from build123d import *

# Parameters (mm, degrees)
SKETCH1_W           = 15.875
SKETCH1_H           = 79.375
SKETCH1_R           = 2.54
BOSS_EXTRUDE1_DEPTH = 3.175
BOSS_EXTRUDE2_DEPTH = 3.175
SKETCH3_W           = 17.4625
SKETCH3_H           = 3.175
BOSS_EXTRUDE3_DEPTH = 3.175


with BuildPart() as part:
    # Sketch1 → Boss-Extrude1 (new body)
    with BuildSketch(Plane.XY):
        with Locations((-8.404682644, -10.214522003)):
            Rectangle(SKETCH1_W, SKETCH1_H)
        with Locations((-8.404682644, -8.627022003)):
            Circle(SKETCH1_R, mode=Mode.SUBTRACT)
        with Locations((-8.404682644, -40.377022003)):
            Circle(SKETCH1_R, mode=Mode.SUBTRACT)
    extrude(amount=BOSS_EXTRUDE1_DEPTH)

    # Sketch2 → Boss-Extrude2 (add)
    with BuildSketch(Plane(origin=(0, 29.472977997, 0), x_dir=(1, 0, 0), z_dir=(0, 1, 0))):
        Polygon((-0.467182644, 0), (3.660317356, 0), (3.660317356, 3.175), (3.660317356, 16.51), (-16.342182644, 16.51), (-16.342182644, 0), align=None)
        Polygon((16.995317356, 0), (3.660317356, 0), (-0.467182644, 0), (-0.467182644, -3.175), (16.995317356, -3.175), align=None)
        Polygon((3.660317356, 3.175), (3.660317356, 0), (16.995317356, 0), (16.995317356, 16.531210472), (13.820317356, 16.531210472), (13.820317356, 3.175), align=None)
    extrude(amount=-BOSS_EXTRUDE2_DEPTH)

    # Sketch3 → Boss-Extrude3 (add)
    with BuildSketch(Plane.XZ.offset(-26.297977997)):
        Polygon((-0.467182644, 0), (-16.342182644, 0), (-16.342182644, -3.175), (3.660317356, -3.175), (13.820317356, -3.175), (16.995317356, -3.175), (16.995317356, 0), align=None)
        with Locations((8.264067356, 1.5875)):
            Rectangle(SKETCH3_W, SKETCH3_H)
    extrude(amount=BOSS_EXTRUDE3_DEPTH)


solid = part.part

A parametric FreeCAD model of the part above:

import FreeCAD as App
import Part
import Sketcher
from FreeCAD import Vector
Q = App.Units.Quantity

doc = App.newDocument("Part")
body = doc.addObject("PartDesign::Body", "Body")

# Sketch on XY plane
sketch1 = body.newObject("Sketcher::SketchObject", "Sketch")
sketch1.AttachmentSupport = (doc.getObject("XY_Plane"), [""])
sketch1.MapMode = "FlatFace"
sketch1.addGeometry([
    Part.LineSegment(Vector(-16.3, 29.5, 0), Vector(-16.3, -49.9, 0)),  # 0
    Part.LineSegment(Vector(-16.3, -49.9, 0), Vector(-0.5, -49.9, 0)),  # 1
    Part.LineSegment(Vector(-0.5, -49.9, 0), Vector(-0.5, 29.5, 0)),  # 2
    Part.LineSegment(Vector(-0.5, 29.5, 0), Vector(-16.3, 29.5, 0)),  # 3
    Part.Circle(Vector(-8.4, -40.4, 0), Vector(0, 0, 1), 2.5),  # 4
    Part.Circle(Vector(-8.4, -8.6, 0), Vector(0, 0, 1), 2.5),  # 5
], False)
sketch1.addConstraint([
    Sketcher.Constraint("Coincident", 0, 2, 1, 1),
    Sketcher.Constraint("Coincident", 1, 2, 2, 1),
    Sketcher.Constraint("Coincident", 2, 2, 3, 1),
    Sketcher.Constraint("Coincident", 3, 2, 0, 1),
    Sketcher.Constraint("Vertical", 0),
    Sketcher.Constraint("Horizontal", 1),
    Sketcher.Constraint("Vertical", 2),
    Sketcher.Constraint("Horizontal", 3),
    Sketcher.Constraint("Equal", 4, 5),
    Sketcher.Constraint("Vertical", 4, 3, 5, 3),
    Sketcher.Constraint("Diameter", 4, Q("0.2 in")),
    Sketcher.Constraint("DistanceY", 5, 3, 2, 2, Q("1.5 in")),
    Sketcher.Constraint("DistanceX", 1, 1, 1, 2, Q("0.625 in")),
    Sketcher.Constraint("DistanceY", 0, 2, 0, 1, Q("3.125 in")),
    Sketcher.Constraint("DistanceY", 4, 3, 5, 3, Q("1.25 in")),
    Sketcher.Constraint("DistanceX", 0, 2, 4, 3, Q("0.3125 in")),
    Sketcher.Constraint("DistanceX", 4, 3, -1, 1, Q("8.404683 mm")),
    Sketcher.Constraint("DistanceY", 4, 3, -1, 1, Q("40.377022 mm")),
])
pad1 = body.newObject("PartDesign::Pad", "Pad")
pad1.Profile = sketch1
pad1.Length = Q("0.125 in")

# Sketch on XZ plane
sketch2 = body.newObject("Sketcher::SketchObject", "Sketch001")
sketch2.AttachmentSupport = (doc.getObject("XZ_Plane"), [""])
sketch2.MapMode = "FlatFace"
sketch2.AttachmentOffset = App.Placement(Vector(0, 0, -29.472978), App.Rotation())
sketch2.addGeometry([
    Part.LineSegment(Vector(3.7, -3.2, 0), Vector(3.7, -16.5, 0)),  # 0
    Part.LineSegment(Vector(3.7, -16.5, 0), Vector(-16.3, -16.5, 0)),  # 1
    Part.LineSegment(Vector(-16.3, -16.5, 0), Vector(-16.3, 0, 0)),  # 2
    Part.LineSegment(Vector(-16.3, 0, 0), Vector(-0.5, 0, 0)),  # 3
    Part.LineSegment(Vector(-0.5, 0, 0), Vector(-0.5, 3.2, 0)),  # 4
    Part.LineSegment(Vector(-0.5, 3.2, 0), Vector(17, 3.2, 0)),  # 5
    Part.LineSegment(Vector(17, 3.2, 0), Vector(17, -16.5, 0)),  # 6
    Part.LineSegment(Vector(17, -16.5, 0), Vector(13.8, -16.5, 0)),  # 7
    Part.LineSegment(Vector(13.8, -16.5, 0), Vector(13.8, -3.2, 0)),  # 8
    Part.LineSegment(Vector(13.8, -3.2, 0), Vector(3.7, -3.2, 0)),  # 9
], False)
sketch2.addConstraint([
    Sketcher.Constraint("Coincident", 0, 2, 1, 1),
    Sketcher.Constraint("Coincident", 1, 2, 2, 1),
    Sketcher.Constraint("Coincident", 2, 2, 3, 1),
    Sketcher.Constraint("Coincident", 3, 2, 4, 1),
    Sketcher.Constraint("Coincident", 4, 2, 5, 1),
    Sketcher.Constraint("Coincident", 5, 2, 6, 1),
    Sketcher.Constraint("Coincident", 6, 2, 7, 1),
    Sketcher.Constraint("Coincident", 7, 2, 8, 1),
    Sketcher.Constraint("Coincident", 8, 2, 9, 1),
    Sketcher.Constraint("Coincident", 9, 2, 0, 1),
    Sketcher.Constraint("Vertical", 0),
    Sketcher.Constraint("Horizontal", 1),
    Sketcher.Constraint("Vertical", 2),
    Sketcher.Constraint("Horizontal", 3),
    Sketcher.Constraint("Vertical", 4),
    Sketcher.Constraint("Horizontal", 5),
    Sketcher.Constraint("Vertical", 6),
    Sketcher.Constraint("Horizontal", 7),
    Sketcher.Constraint("Vertical", 8),
    Sketcher.Constraint("Horizontal", 9),
    Sketcher.Constraint("PointOnObject", 2, 2, -1),
    Sketcher.Constraint("Equal", 7, 4),
    Sketcher.Constraint("DistanceX", 9, 2, 9, 1, Q("0.4 in")),
    Sketcher.Constraint("DistanceY", 2, 1, 2, 2, Q("0.65 in")),
    Sketcher.Constraint("DistanceX", 3, 1, 3, 2, Q("0.625 in")),
    Sketcher.Constraint("DistanceX", 5, 1, 5, 2, Q("0.6875 in")),
    Sketcher.Constraint("DistanceX", 7, 2, 7, 1, Q("0.125 in")),
    Sketcher.Constraint("DistanceY", 0, 2, 0, 1, Q("0.525 in")),
    Sketcher.Constraint("DistanceY", 6, 2, 6, 1, Q("19.70621 mm")),
    Sketcher.Constraint("DistanceX", -1, 1, 0, 2, Q("3.660317 mm")),
])
pad2 = body.newObject("PartDesign::Pad", "Pad001")
pad2.Profile = sketch2
pad2.Length = Q("0.125 in")

# Sketch on XZ plane
sketch3 = body.newObject("Sketcher::SketchObject", "Sketch002")
sketch3.AttachmentSupport = (doc.getObject("XZ_Plane"), [""])
sketch3.MapMode = "FlatFace"
sketch3.AttachmentOffset = App.Placement(Vector(0, 0, -26.297978), App.Rotation())
sketch3.addGeometry([
    Part.LineSegment(Vector(-16.3, 0, 0), Vector(-16.3, -3.2, 0)),  # 0
    Part.LineSegment(Vector(-16.3, -3.2, 0), Vector(17, -3.2, 0)),  # 1
    Part.LineSegment(Vector(17, -3.2, 0), Vector(17, 3.2, 0)),  # 2
    Part.LineSegment(Vector(17, 3.2, 0), Vector(-0.5, 3.2, 0)),  # 3
    Part.LineSegment(Vector(-0.5, 3.2, 0), Vector(-0.5, 0, 0)),  # 4
    Part.LineSegment(Vector(-0.5, 0, 0), Vector(-16.3, 0, 0)),  # 5
], False)
sketch3.addConstraint([
    Sketcher.Constraint("Coincident", 0, 2, 1, 1),
    Sketcher.Constraint("Coincident", 1, 2, 2, 1),
    Sketcher.Constraint("Coincident", 2, 2, 3, 1),
    Sketcher.Constraint("Coincident", 3, 2, 4, 1),
    Sketcher.Constraint("Coincident", 4, 2, 5, 1),
    Sketcher.Constraint("Coincident", 5, 2, 0, 1),
    Sketcher.Constraint("Vertical", 0),
    Sketcher.Constraint("Horizontal", 1),
    Sketcher.Constraint("Vertical", 2),
    Sketcher.Constraint("Horizontal", 3),
    Sketcher.Constraint("Vertical", 4),
    Sketcher.Constraint("Horizontal", 5),
    Sketcher.Constraint("PointOnObject", 4, 2, -1),
    Sketcher.Constraint("Equal", 0, 4),
    Sketcher.Constraint("DistanceY", 2, 1, 2, 2, Q("0.25 in")),
    Sketcher.Constraint("DistanceX", 1, 1, 1, 2, Q("1.3125 in")),
    Sketcher.Constraint("DistanceX", 3, 2, 3, 1, Q("0.6875 in")),
    Sketcher.Constraint("DistanceX", 0, 2, -1, 1, Q("16.342183 mm")),
])
pad3 = body.newObject("PartDesign::Pad", "Pad002")
pad3.Profile = sketch3
pad3.Length = Q("0.125 in")

doc.recompute()
